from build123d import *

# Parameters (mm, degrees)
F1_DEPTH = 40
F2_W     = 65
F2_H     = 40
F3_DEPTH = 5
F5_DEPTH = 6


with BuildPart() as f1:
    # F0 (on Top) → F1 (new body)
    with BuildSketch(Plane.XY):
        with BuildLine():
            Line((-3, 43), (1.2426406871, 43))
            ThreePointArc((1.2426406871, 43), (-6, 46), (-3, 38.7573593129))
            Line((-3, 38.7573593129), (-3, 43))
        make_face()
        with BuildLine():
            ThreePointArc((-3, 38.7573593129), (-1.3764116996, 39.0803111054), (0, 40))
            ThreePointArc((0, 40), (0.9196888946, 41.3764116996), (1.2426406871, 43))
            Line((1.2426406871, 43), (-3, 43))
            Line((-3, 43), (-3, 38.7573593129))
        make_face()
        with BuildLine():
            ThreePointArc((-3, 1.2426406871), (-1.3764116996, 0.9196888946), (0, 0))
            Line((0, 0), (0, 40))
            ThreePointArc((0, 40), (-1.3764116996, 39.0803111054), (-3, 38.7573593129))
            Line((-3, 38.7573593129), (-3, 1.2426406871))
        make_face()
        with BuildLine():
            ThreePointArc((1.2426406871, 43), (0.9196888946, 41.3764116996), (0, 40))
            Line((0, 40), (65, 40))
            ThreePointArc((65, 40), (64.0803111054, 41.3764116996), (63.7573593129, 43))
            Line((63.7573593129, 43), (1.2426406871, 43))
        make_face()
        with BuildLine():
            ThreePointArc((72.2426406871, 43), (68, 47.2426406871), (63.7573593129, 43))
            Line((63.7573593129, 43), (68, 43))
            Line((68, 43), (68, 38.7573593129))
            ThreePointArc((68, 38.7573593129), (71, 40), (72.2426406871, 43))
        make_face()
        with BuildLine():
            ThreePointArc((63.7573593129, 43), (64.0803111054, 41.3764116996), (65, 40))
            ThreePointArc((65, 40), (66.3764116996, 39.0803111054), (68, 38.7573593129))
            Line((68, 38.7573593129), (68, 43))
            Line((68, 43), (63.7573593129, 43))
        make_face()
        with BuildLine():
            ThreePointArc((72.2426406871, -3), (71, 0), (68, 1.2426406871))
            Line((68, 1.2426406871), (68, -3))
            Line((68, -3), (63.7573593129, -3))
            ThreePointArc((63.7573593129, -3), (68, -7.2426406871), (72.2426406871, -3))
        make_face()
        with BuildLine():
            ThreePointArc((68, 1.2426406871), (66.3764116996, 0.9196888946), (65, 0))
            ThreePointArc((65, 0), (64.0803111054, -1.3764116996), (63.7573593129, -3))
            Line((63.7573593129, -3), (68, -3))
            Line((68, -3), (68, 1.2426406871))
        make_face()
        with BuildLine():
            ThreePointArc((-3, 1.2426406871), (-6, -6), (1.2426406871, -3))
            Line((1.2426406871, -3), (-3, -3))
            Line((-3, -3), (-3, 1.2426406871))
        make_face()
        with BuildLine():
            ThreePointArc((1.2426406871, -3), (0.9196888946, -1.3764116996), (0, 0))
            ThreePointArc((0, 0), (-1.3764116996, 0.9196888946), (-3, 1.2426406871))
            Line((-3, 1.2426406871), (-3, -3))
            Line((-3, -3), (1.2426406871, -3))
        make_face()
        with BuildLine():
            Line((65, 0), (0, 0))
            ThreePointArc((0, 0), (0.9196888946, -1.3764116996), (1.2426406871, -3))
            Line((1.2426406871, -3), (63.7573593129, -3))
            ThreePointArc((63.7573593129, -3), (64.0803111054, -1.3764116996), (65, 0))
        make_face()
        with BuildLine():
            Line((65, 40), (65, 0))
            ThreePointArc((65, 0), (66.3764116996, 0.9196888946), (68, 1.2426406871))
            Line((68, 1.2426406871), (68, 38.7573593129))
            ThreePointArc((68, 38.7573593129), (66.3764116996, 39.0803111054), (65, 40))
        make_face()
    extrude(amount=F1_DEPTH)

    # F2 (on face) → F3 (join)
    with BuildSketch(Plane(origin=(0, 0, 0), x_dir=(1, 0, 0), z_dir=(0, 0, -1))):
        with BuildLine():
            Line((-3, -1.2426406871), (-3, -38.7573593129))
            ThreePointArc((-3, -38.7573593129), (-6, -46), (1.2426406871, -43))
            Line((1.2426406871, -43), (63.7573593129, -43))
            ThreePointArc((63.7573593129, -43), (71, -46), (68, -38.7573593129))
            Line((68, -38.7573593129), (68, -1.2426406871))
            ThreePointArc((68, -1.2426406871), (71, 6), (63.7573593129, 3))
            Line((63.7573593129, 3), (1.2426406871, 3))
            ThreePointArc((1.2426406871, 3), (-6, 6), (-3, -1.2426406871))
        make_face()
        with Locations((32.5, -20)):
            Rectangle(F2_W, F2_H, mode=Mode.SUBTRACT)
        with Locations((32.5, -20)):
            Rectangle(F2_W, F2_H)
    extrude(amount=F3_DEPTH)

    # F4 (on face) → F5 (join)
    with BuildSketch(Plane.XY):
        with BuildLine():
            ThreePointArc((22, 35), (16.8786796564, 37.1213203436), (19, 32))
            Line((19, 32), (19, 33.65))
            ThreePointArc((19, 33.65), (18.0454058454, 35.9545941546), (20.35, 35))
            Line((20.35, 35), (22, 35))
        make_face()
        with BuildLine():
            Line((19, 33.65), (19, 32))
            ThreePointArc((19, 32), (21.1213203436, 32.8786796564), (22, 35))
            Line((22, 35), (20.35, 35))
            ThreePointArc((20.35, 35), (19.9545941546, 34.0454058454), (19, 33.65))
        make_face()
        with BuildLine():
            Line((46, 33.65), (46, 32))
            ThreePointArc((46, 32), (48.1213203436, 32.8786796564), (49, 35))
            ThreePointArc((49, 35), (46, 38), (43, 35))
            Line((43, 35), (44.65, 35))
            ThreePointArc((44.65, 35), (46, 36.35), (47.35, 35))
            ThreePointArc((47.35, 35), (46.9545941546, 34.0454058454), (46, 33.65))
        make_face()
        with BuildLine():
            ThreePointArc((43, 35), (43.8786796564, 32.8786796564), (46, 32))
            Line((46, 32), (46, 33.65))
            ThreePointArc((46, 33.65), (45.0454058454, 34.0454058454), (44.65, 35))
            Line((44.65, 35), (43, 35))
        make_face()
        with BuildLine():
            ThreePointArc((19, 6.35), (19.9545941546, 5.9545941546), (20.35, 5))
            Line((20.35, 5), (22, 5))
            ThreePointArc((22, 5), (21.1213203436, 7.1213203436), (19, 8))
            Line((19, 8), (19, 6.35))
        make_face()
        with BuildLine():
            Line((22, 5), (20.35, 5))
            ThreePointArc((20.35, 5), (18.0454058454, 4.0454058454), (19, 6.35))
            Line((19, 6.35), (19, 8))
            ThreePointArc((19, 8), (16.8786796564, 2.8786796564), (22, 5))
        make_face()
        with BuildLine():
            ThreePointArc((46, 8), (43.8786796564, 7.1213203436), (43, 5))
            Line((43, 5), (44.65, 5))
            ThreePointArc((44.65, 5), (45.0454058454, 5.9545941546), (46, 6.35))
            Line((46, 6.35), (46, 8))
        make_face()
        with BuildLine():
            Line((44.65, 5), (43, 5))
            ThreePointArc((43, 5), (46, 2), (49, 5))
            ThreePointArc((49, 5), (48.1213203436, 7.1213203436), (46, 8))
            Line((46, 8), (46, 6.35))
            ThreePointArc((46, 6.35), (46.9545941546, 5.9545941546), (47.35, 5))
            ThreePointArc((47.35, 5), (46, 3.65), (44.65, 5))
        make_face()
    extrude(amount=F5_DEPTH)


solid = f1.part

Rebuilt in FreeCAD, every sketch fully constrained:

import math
import FreeCAD as App
import Part
import Sketcher

doc = App.newDocument("Part")
params = doc.addObject("Spreadsheet::Sheet", "Params")
for row, (alias, value) in enumerate([
    ("sketch1_width", "65 mm"),
    ("sketch1_height", "40 mm"),
    ("pad1_length", "40 mm"),
    ("pad2_length", "5 mm"),
    ("sketch3_radius", "3 mm"),
    ("sketch3_radius2", "1.35 mm"),
    ("pad3_length", "6 mm"),
], start=1):
    params.set(f"A{row}", alias)
    params.set(f"B{row}", "=" + value)
    params.setAlias(f"B{row}", alias)

body = doc.addObject("PartDesign::Body", "Body")

# Sketch on XY plane
sketch1 = body.newObject("Sketcher::SketchObject", "Sketch")
sketch1.AttachmentSupport = (doc.getObject("XY_Plane"), [""])
sketch1.MapMode = "FlatFace"
sketch1.addGeometry(Part.ArcOfCircle(Part.Circle(App.Vector(-3, 43, 0), App.Vector(0, 0, 1), 4.2), math.radians(0), math.radians(270)), False)
sketch1.addGeometry(Part.LineSegment(App.Vector(-3, 38.8, 0), App.Vector(-3, 1.2, 0)), False)
sketch1.addGeometry(Part.ArcOfCircle(Part.Circle(App.Vector(-3, -3, 0), App.Vector(0, 0, 1), 4.2), math.radians(90), math.radians(360)), False)
sketch1.addGeometry(Part.LineSegment(App.Vector(1.2, -3, 0), App.Vector(63.8, -3, 0)), False)
sketch1.addGeometry(Part.ArcOfCircle(Part.Circle(App.Vector(68, -3, 0), App.Vector(0, 0, 1), 4.2), math.radians(180), math.radians(360)), False)
sketch1.addGeometry(Part.ArcOfCircle(Part.Circle(App.Vector(68, -3, 0), App.Vector(0, 0, 1), 4.2), math.radians(0), math.radians(90)), False)
sketch1.addGeometry(Part.LineSegment(App.Vector(68, 1.2, 0), App.Vector(68, 38.8, 0)), False)
sketch1.addGeometry(Part.ArcOfCircle(Part.Circle(App.Vector(68, 43, 0), App.Vector(0, 0, 1), 4.2), math.radians(-90), math.radians(0)), False)
sketch1.addGeometry(Part.ArcOfCircle(Part.Circle(App.Vector(68, 43, 0), App.Vector(0, 0, 1), 4.2), math.radians(0), math.radians(180)), False)
sketch1.addGeometry(Part.LineSegment(App.Vector(63.8, 43, 0), App.Vector(1.2, 43, 0)), False)
sketch1.addGeometry(Part.LineSegment(App.Vector(65, 0, 0), App.Vector(0, 0, 0)), False)
sketch1.addGeometry(Part.LineSegment(App.Vector(0, 0, 0), App.Vector(0, 40, 0)), False)
sketch1.addGeometry(Part.LineSegment(App.Vector(0, 40, 0), App.Vector(65, 40, 0)), False)
sketch1.addGeometry(Part.LineSegment(App.Vector(65, 40, 0), App.Vector(65, 0, 0)), False)
sketch1.addConstraint(Sketcher.Constraint("Coincident", 0, 2, 1, 1))
sketch1.addConstraint(Sketcher.Constraint("Coincident", 1, 2, 2, 1))
sketch1.addConstraint(Sketcher.Constraint("Coincident", 2, 2, 3, 1))
sketch1.addConstraint(Sketcher.Constraint("Coincident", 3, 2, 4, 1))
sketch1.addConstraint(Sketcher.Constraint("Tangent", 4, 2, 5, 1))
sketch1.addConstraint(Sketcher.Constraint("Coincident", 5, 2, 6, 1))
sketch1.addConstraint(Sketcher.Constraint("Coincident", 6, 2, 7, 1))
sketch1.addConstraint(Sketcher.Constraint("Tangent", 7, 2, 8, 1))
sketch1.addConstraint(Sketcher.Constraint("Coincident", 8, 2, 9, 1))
sketch1.addConstraint(Sketcher.Constraint("Coincident", 9, 2, 0, 1))
sketch1.addConstraint(Sketcher.Constraint("Coincident", 10, 2, 11, 1))
sketch1.addConstraint(Sketcher.Constraint("Coincident", 11, 2, 12, 1))
sketch1.addConstraint(Sketcher.Constraint("Coincident", 12, 2, 13, 1))
sketch1.addConstraint(Sketcher.Constraint("Coincident", 13, 2, 10, 1))
sketch1.addConstraint(Sketcher.Constraint("Vertical", 1))
sketch1.addConstraint(Sketcher.Constraint("Horizontal", 3))
sketch1.addConstraint(Sketcher.Constraint("Vertical", 6))
sketch1.addConstraint(Sketcher.Constraint("Horizontal", 9))
sketch1.addConstraint(Sketcher.Constraint("Horizontal", 10))
sketch1.addConstraint(Sketcher.Constraint("Vertical", 11))
sketch1.addConstraint(Sketcher.Constraint("Horizontal", 12))
sketch1.addConstraint(Sketcher.Constraint("Vertical", 13))
sketch1.addConstraint(Sketcher.Constraint("Coincident", 10, 2, -1, 1))
sketch1.addConstraint(Sketcher.Constraint("Equal", 0, 2))
sketch1.addConstraint(Sketcher.Constraint("Equal", 2, 4))
sketch1.addConstraint(Sketcher.Constraint("Equal", 4, 5))
sketch1.addConstraint(Sketcher.Constraint("Equal", 5, 7))
sketch1.addConstraint(Sketcher.Constraint("Equal", 7, 8))
sketch1.addConstraint(Sketcher.Constraint("Horizontal", 2, 3, 4, 3))
sketch1.addConstraint(Sketcher.Constraint("Horizontal", 0, 3, 7, 3))
sketch1.addConstraint(Sketcher.Constraint("Horizontal", 5, 3, 2, 2))
sketch1.addConstraint(Sketcher.Constraint("Horizontal", 3, 2, 4, 2))
sketch1.addConstraint(Sketcher.Constraint("Horizontal", 8, 3, 7, 2))
sketch1.addConstraint(Sketcher.Constraint("Horizontal", 7, 2, 8, 2))
sketch1.addConstraint(Sketcher.Constraint("Vertical", 0, 3, 2, 3))
sketch1.addConstraint(Sketcher.Constraint("Vertical", 5, 3, 7, 3))
sketch1.addConstraint(Sketcher.Constraint("Vertical", 2, 3, 0, 2))
sketch1.addConstraint(Sketcher.Constraint("Vertical", 8, 3, 5, 2))
sketch1.addConstraint(Sketcher.Constraint("DistanceX", 10, 2, 10, 1, 65.0))
sketch1.addConstraint(Sketcher.Constraint("DistanceY", 11, 1, 11, 2, 40.0))
sketch1.addConstraint(Sketcher.Constraint("DistanceX", 0, 3, -1, 1, 3.0))
sketch1.addConstraint(Sketcher.Constraint("DistanceY", -1, 1, 0, 3, 43.0))
sketch1.addConstraint(Sketcher.Constraint("DistanceY", 2, 3, -1, 1, 3.0))
sketch1.addConstraint(Sketcher.Constraint("DistanceX", -1, 1, 4, 3, 68.0))
sketch1.addConstraint(Sketcher.Constraint("Radius", 0, 4.242641))
sketch1.setExpression("Constraints[38]", "Params.sketch1_width")
sketch1.setExpression("Constraints[39]", "Params.sketch1_height")
pad1 = body.newObject("PartDesign::Pad", "Pad")
pad1.Profile = sketch1
pad1.setExpression("Length", "Params.pad1_length")

# Sketch on XY plane
sketch2 = body.newObject("Sketcher::SketchObject", "Sketch001")
sketch2.AttachmentSupport = (doc.getObject("XY_Plane"), [""])
sketch2.MapMode = "FlatFace"
sketch2.addGeometry(Part.LineSegment(App.Vector(-3, 1.2, 0), App.Vector(-3, 38.8, 0)), False)
sketch2.addGeometry(Part.ArcOfCircle(Part.Circle(App.Vector(-3, 43, 0), App.Vector(0, 0, 1), 4.2), math.radians(0), math.radians(270)), False)
sketch2.addGeometry(Part.LineSegment(App.Vector(1.2, 43, 0), App.Vector(63.8, 43, 0)), False)
sketch2.addGeometry(Part.ArcOfCircle(Part.Circle(App.Vector(68, 43, 0), App.Vector(0, 0, 1), 4.2), math.radians(-90), math.radians(180)), False)
sketch2.addGeometry(Part.LineSegment(App.Vector(68, 38.8, 0), App.Vector(68, 1.2, 0)), False)
sketch2.addGeometry(Part.ArcOfCircle(Part.Circle(App.Vector(68, -3, 0), App.Vector(0, 0, 1), 4.2), math.radians(180), math.radians(450)), False)
sketch2.addGeometry(Part.LineSegment(App.Vector(63.8, -3, 0), App.Vector(1.2, -3, 0)), False)
sketch2.addGeometry(Part.ArcOfCircle(Part.Circle(App.Vector(-3, -3, 0), App.Vector(0, 0, 1), 4.2), math.radians(90), math.radians(360)), False)
sketch2.addConstraint(Sketcher.Constraint("Coincident", 0, 2, 1, 2))
sketch2.addConstraint(Sketcher.Constraint("Coincident", 1, 1, 2, 1))
sketch2.addConstraint(Sketcher.Constraint("Coincident", 2, 2, 3, 2))
sketch2.addConstraint(Sketcher.Constraint("Coincident", 3, 1, 4, 1))
sketch2.addConstraint(Sketcher.Constraint("Coincident", 4, 2, 5, 2))
sketch2.addConstraint(Sketcher.Constraint("Coincident", 5, 1, 6, 1))
sketch2.addConstraint(Sketcher.Constraint("Coincident", 6, 2, 7, 2))
sketch2.addConstraint(Sketcher.Constraint("Coincident", 7, 1, 0, 1))
sketch2.addConstraint(Sketcher.Constraint("Vertical", 0))
sketch2.addConstraint(Sketcher.Constraint("Horizontal", 2))
sketch2.addConstraint(Sketcher.Constraint("Vertical", 4))
sketch2.addConstraint(Sketcher.Constraint("Horizontal", 6))
sketch2.addConstraint(Sketcher.Constraint("Equal", 1, 3))
sketch2.addConstraint(Sketcher.Constraint("Equal", 3, 5))
sketch2.addConstraint(Sketcher.Constraint("Equal", 5, 7))
sketch2.addConstraint(Sketcher.Constraint("Horizontal", 1, 3, 3, 3))
sketch2.addConstraint(Sketcher.Constraint("Horizontal", 5, 3, 7, 3))
sketch2.addConstraint(Sketcher.Constraint("Horizontal", 3, 3, 1, 1))
sketch2.addConstraint(Sketcher.Constraint("Horizontal", 7, 3, 5, 1))
sketch2.addConstraint(Sketcher.Constraint("Vertical", 3, 3, 5, 3))
sketch2.addConstraint(Sketcher.Constraint("Vertical", 1, 3, 7, 3))
sketch2.addConstraint(Sketcher.Constraint("Vertical", 7, 3, 0, 2))
sketch2.addConstraint(Sketcher.Constraint("Vertical", 5, 3, 3, 1))
sketch2.addConstraint(Sketcher.Constraint("DistanceX", 1, 3, -1, 1, 3.0))
sketch2.addConstraint(Sketcher.Constraint("DistanceY", -1, 1, 1, 3, 43.0))
sketch2.addConstraint(Sketcher.Constraint("DistanceX", -1, 1, 3, 3, 68.0))
sketch2.addConstraint(Sketcher.Constraint("DistanceY", 5, 3, -1, 1, 3.0))
sketch2.addConstraint(Sketcher.Constraint("Radius", 1, 4.242641))
pad2 = body.newObject("PartDesign::Pad", "Pad001")
pad2.Profile = sketch2
pad2.setExpression("Length", "Params.pad2_length")
pad2.Reversed = True

# Sketch on XY plane
sketch3 = body.newObject("Sketcher::SketchObject", "Sketch002")
sketch3.AttachmentSupport = (doc.getObject("XY_Plane"), [""])
sketch3.MapMode = "FlatFace"
sketch3.addGeometry(Part.ArcOfCircle(Part.Circle(App.Vector(19, 35, 0), App.Vector(0, 0, 1), 3), math.radians(0), math.radians(270)), False)
sketch3.addGeometry(Part.ArcOfCircle(Part.Circle(App.Vector(19, 35, 0), App.Vector(0, 0, 1), 3), math.radians(-90), math.radians(0)), False)
sketch3.addGeometry(Part.ArcOfCircle(Part.Circle(App.Vector(19, 35, 0), App.Vector(0, 0, 1), 1.4), math.radians(0), math.radians(270)), False)
sketch3.addGeometry(Part.ArcOfCircle(Part.Circle(App.Vector(19, 35, 0), App.Vector(0, 0, 1), 1.4), math.radians(-90), math.radians(0)), False)
sketch3.addGeometry(Part.ArcOfCircle(Part.Circle(App.Vector(46, 35, 0), App.Vector(0, 0, 1), 3), math.radians(-90), math.radians(0)), False)
sketch3.addGeometry(Part.ArcOfCircle(Part.Circle(App.Vector(46, 35, 0), App.Vector(0, 0, 1), 3), math.radians(0), math.radians(180)), False)
sketch3.addGeometry(Part.ArcOfCircle(Part.Circle(App.Vector(46, 35, 0), App.Vector(0, 0, 1), 3), math.radians(180), math.radians(270)), False)
sketch3.addGeometry(Part.ArcOfCircle(Part.Circle(App.Vector(46, 35, 0), App.Vector(0, 0, 1), 1.4), math.radians(0), math.radians(180)), False)
sketch3.addGeometry(Part.ArcOfCircle(Part.Circle(App.Vector(46, 35, 0), App.Vector(0, 0, 1), 1.4), math.radians(-90), math.radians(0)), False)
sketch3.addGeometry(Part.ArcOfCircle(Part.Circle(App.Vector(46, 35, 0), App.Vector(0, 0, 1), 1.4), math.radians(180), math.radians(270)), False)
sketch3.addGeometry(Part.ArcOfCircle(Part.Circle(App.Vector(19, 5, 0), App.Vector(0, 0, 1), 3), math.radians(0), math.radians(90)), False)
sketch3.addGeometry(Part.ArcOfCircle(Part.Circle(App.Vector(19, 5, 0), App.Vector(0, 0, 1), 3), math.radians(90), math.radians(360)), False)
sketch3.addGeometry(Part.ArcOfCircle(Part.Circle(App.Vector(19, 5, 0), App.Vector(0, 0, 1), 1.4), math.radians(0), math.radians(90)), False)
sketch3.addGeometry(Part.ArcOfCircle(Part.Circle(App.Vector(19, 5, 0), App.Vector(0, 0, 1), 1.4), math.radians(90), math.radians(360)), False)
sketch3.addGeometry(Part.ArcOfCircle(Part.Circle(App.Vector(46, 5, 0), App.Vector(0, 0, 1), 3), math.radians(90), math.radians(180)), False)
sketch3.addGeometry(Part.ArcOfCircle(Part.Circle(App.Vector(46, 5, 0), App.Vector(0, 0, 1), 3), math.radians(180), math.radians(360)), False)
sketch3.addGeometry(Part.ArcOfCircle(Part.Circle(App.Vector(46, 5, 0), App.Vector(0, 0, 1), 3), math.radians(0), math.radians(90)), False)
sketch3.addGeometry(Part.ArcOfCircle(Part.Circle(App.Vector(46, 5, 0), App.Vector(0, 0, 1), 1.4), math.radians(90), math.radians(180)), False)
sketch3.addGeometry(Part.ArcOfCircle(Part.Circle(App.Vector(46, 5, 0), App.Vector(0, 0, 1), 1.4), math.radians(0), math.radians(90)), False)
sketch3.addGeometry(Part.ArcOfCircle(Part.Circle(App.Vector(46, 5, 0), App.Vector(0, 0, 1), 1.4), math.radians(180), math.radians(360)), False)
sketch3.addConstraint(Sketcher.Constraint("Tangent", 0, 1, 1, 2))
sketch3.addConstraint(Sketcher.Constraint("Coincident", 1, 1, 0, 2))
sketch3.addConstraint(Sketcher.Constraint("Tangent", 2, 1, 3, 2))
sketch3.addConstraint(Sketcher.Constraint("Coincident", 3, 1, 2, 2))
sketch3.addConstraint(Sketcher.Constraint("Tangent", 4, 2, 5, 1))
sketch3.addConstraint(Sketcher.Constraint("Tangent", 5, 2, 6, 1))
sketch3.addConstraint(Sketcher.Constraint("Tangent", 6, 2, 4, 1))
sketch3.addConstraint(Sketcher.Constraint("Tangent", 7, 1, 8, 2))
sketch3.addConstraint(Sketcher.Constraint("Tangent", 8, 1, 9, 2))
sketch3.addConstraint(Sketcher.Constraint("Tangent", 9, 1, 7, 2))
sketch3.addConstraint(Sketcher.Constraint("Tangent", 10, 1, 11, 2))
sketch3.addConstraint(Sketcher.Constraint("Coincident", 11, 1, 10, 2))
sketch3.addConstraint(Sketcher.Constraint("Tangent", 12, 1, 13, 2))
sketch3.addConstraint(Sketcher.Constraint("Coincident", 13, 1, 12, 2))
sketch3.addConstraint(Sketcher.Constraint("Tangent", 14, 2, 15, 1))
sketch3.addConstraint(Sketcher.Constraint("Tangent", 15, 2, 16, 1))
sketch3.addConstraint(Sketcher.Constraint("Tangent", 16, 2, 14, 1))
sketch3.addConstraint(Sketcher.Constraint("Tangent", 17, 1, 18, 2))
sketch3.addConstraint(Sketcher.Constraint("Tangent", 18, 1, 19, 2))
sketch3.addConstraint(Sketcher.Constraint("Tangent", 19, 1, 17, 2))
sketch3.addConstraint(Sketcher.Constraint("Coincident", 2, 3, 0, 3))
sketch3.addConstraint(Sketcher.Constraint("Coincident", 7, 3, 4, 3))
sketch3.addConstraint(Sketcher.Constraint("Coincident", 12, 3, 10, 3))
sketch3.addConstraint(Sketcher.Constraint("Coincident", 17, 3, 14, 3))
sketch3.addConstraint(Sketcher.Constraint("Equal", 1, 4))
sketch3.addConstraint(Sketcher.Constraint("Equal", 3, 7))
sketch3.addConstraint(Sketcher.Constraint("Equal", 6, 10))
sketch3.addConstraint(Sketcher.Constraint("Equal", 9, 12))
sketch3.addConstraint(Sketcher.Constraint("Equal", 11, 14))
sketch3.addConstraint(Sketcher.Constraint("Equal", 13, 17))
sketch3.addConstraint(Sketcher.Constraint("Horizontal", 3, 3, 4, 3))
sketch3.addConstraint(Sketcher.Constraint("Horizontal", 13, 3, 14, 3))
sketch3.addConstraint(Sketcher.Constraint("Horizontal", 9, 3, 0, 1))
sketch3.addConstraint(Sketcher.Constraint("Horizontal", 0, 1, 2, 1))
sketch3.addConstraint(Sketcher.Constraint("Horizontal", 2, 1, 4, 2))
sketch3.addConstraint(Sketcher.Constraint("Horizontal", 4, 2, 5, 2))
sketch3.addConstraint(Sketcher.Constraint("Horizontal", 5, 2, 7, 1))
sketch3.addConstraint(Sketcher.Constraint("Horizontal", 7, 1, 9, 1))
sketch3.addConstraint(Sketcher.Constraint("Horizontal", 19, 3, 10, 1))
sketch3.addConstraint(Sketcher.Constraint("Horizontal", 10, 1, 12, 1))
sketch3.addConstraint(Sketcher.Constraint("Horizontal", 12, 1, 14, 2))
sketch3.addConstraint(Sketcher.Constraint("Horizontal", 14, 2, 15, 2))
sketch3.addConstraint(Sketcher.Constraint("Horizontal", 15, 2, 18, 1))
sketch3.addConstraint(Sketcher.Constraint("Horizontal", 18, 1, 19, 1))
sketch3.addConstraint(Sketcher.Constraint("Vertical", 3, 3, 10, 3))
sketch3.addConstraint(Sketcher.Constraint("Vertical", 9, 3, 14, 3))
sketch3.addConstraint(Sketcher.Constraint("Vertical", 13, 3, 1, 1))
sketch3.addConstraint(Sketcher.Constraint("Vertical", 1, 1, 3, 1))
sketch3.addConstraint(Sketcher.Constraint("Vertical", 19, 3, 6, 2))
sketch3.addConstraint(Sketcher.Constraint("Vertical", 6, 2, 8, 1))
sketch3.addConstraint(Sketcher.Constraint("Vertical", 3, 1, 11, 1))
sketch3.addConstraint(Sketcher.Constraint("Vertical", 11, 1, 13, 1))
sketch3.addConstraint(Sketcher.Constraint("Vertical", 8, 1, 16, 2))
sketch3.addConstraint(Sketcher.Constraint("Vertical", 16, 2, 17, 1))
sketch3.addConstraint(Sketcher.Constraint("Radius", 0, 3.0))
sketch3.addConstraint(Sketcher.Constraint("Radius", 2, 1.35))
sketch3.addConstraint(Sketcher.Constraint("DistanceX", -1, 1, 0, 3, 19.0))
sketch3.addConstraint(Sketcher.Constraint("DistanceY", -1, 1, 0, 3, 35.0))
sketch3.addConstraint(Sketcher.Constraint("DistanceX", -1, 1, 4, 3, 46.0))
sketch3.addConstraint(Sketcher.Constraint("DistanceY", -1, 1, 10, 3, 5.0))
sketch3.setExpression("Constraints[54]", "Params.sketch3_radius")
sketch3.setExpression("Constraints[55]", "Params.sketch3_radius2")
pad3 = body.newObject("PartDesign::Pad", "Pad002")
pad3.Profile = sketch3
pad3.setExpression("Length", "Params.pad3_length")

doc.recompute()
